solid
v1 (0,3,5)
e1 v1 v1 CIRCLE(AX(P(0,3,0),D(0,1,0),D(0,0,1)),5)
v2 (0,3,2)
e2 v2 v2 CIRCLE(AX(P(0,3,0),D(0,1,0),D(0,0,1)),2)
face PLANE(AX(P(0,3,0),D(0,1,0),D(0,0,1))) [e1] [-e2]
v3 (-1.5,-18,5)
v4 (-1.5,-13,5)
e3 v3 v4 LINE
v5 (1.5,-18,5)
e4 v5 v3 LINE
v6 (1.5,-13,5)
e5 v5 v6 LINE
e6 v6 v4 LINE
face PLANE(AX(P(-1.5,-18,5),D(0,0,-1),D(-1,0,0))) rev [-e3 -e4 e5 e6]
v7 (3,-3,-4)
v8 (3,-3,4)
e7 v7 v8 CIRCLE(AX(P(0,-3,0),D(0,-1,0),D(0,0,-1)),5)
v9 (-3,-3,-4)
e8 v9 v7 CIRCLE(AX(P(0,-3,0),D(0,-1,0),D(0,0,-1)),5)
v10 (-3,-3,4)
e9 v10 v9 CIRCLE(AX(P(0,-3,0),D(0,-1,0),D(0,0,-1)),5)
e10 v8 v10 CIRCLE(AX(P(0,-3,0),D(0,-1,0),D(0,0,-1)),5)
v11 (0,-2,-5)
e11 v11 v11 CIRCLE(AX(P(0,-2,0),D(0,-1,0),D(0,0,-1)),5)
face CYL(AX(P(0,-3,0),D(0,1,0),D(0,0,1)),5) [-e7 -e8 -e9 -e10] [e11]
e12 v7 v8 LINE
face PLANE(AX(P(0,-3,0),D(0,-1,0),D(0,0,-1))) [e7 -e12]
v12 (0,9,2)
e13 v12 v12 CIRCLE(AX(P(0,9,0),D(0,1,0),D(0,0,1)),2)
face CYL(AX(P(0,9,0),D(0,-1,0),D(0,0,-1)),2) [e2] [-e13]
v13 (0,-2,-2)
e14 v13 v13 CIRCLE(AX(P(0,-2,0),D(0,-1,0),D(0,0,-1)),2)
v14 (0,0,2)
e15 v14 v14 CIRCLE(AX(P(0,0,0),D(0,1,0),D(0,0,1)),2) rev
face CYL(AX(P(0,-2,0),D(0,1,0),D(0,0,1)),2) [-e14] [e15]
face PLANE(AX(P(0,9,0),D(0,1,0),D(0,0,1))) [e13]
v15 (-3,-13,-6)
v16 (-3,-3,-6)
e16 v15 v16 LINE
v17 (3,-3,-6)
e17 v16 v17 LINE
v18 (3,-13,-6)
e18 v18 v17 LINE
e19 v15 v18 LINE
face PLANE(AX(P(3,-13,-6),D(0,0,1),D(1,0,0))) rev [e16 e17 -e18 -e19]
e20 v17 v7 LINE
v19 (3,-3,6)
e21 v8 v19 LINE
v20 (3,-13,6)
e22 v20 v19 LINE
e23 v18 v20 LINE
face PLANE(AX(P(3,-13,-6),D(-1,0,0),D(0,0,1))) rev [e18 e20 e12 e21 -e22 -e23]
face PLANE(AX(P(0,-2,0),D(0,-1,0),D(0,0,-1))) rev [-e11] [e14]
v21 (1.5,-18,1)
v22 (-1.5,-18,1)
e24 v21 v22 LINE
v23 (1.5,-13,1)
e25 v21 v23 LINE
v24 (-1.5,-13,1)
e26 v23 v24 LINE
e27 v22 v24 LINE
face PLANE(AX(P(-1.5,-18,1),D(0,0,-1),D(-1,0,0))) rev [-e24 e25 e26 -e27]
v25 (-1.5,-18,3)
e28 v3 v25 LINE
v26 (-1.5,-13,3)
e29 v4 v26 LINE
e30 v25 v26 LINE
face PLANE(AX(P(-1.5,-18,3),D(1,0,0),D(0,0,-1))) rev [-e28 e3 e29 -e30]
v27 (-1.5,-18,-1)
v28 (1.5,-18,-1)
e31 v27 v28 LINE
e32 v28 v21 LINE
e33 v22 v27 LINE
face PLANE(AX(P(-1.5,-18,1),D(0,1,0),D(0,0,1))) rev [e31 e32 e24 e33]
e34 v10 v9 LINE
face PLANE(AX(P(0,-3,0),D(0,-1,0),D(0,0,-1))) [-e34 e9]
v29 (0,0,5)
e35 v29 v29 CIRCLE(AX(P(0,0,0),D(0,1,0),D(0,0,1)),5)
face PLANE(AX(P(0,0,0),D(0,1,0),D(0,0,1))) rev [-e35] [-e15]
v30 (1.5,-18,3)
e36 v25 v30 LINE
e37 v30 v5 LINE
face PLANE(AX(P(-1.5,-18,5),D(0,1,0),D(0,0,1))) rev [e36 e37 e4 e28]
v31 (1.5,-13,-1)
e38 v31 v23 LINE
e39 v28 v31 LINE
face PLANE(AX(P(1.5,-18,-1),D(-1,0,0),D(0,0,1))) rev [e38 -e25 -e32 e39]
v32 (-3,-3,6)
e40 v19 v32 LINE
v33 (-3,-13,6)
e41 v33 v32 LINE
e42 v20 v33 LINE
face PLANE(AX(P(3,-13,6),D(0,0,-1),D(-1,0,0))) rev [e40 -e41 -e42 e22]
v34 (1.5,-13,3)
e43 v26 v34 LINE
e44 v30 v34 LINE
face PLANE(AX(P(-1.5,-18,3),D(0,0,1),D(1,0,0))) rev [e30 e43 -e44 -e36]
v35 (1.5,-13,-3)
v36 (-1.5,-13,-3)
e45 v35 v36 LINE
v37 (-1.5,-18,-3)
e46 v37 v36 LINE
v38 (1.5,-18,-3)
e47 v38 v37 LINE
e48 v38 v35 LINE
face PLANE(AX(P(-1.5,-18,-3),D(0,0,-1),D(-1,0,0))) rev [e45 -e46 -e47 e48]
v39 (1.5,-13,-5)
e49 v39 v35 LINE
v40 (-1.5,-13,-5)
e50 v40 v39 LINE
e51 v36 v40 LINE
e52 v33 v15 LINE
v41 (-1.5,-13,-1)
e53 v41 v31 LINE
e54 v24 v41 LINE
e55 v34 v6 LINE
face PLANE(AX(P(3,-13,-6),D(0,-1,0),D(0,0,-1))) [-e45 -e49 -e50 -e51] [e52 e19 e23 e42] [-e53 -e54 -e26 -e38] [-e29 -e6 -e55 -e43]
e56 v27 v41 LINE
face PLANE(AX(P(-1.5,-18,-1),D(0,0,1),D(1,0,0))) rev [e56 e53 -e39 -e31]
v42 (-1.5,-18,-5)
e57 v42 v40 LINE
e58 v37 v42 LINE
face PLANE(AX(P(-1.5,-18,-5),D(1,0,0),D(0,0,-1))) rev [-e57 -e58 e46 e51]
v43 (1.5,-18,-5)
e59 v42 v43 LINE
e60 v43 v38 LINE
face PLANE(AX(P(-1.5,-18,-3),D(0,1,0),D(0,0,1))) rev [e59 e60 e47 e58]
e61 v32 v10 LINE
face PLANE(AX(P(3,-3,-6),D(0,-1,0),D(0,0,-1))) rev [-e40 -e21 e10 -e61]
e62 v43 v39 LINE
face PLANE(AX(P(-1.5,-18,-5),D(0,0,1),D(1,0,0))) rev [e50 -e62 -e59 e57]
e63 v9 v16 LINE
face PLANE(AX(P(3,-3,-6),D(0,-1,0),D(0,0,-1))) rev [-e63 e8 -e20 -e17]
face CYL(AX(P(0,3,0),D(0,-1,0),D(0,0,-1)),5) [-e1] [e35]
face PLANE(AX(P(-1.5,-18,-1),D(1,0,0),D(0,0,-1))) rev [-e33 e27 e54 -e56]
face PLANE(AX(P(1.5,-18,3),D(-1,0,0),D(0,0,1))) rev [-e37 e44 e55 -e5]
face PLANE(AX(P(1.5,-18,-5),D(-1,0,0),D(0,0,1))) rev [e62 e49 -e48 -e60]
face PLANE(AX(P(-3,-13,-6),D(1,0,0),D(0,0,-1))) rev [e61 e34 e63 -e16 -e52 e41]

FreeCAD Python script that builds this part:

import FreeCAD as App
import Part
import Sketcher
Q = App.Units.Quantity


def add_polygon(sketch, points):
    """Adds a closed chain of lines whose ends are joined by coincident constraints."""
    first, n = sketch.GeometryCount, len(points)
    for a, b in zip(points, points[1:] + points[:1]):
        sketch.addGeometry(Part.LineSegment(App.Vector(*a, 0), App.Vector(*b, 0)), False)
    for i in range(n):
        sketch.addConstraint(Sketcher.Constraint("Coincident", first + i, 2, first + (i + 1) % n, 1))

doc = App.newDocument("Part")
body = doc.addObject("PartDesign::Body", "Body")

# Sketch on XZ plane
sketch1 = doc.addObject("Sketcher::SketchObject", "Sketch")
body.addObject(sketch1)
sketch1.AttachmentSupport = (doc.XZ_Plane, [""])
sketch1.MapMode = "FlatFace"
sketch1.addGeometry(Part.Circle(App.Vector(0, 0, 0), App.Vector(0, 0, 1), 5), False)
sketch1.addConstraint([
    Sketcher.Constraint("Coincident", 0, 3, -1, 1),
    Sketcher.Constraint("Diameter", 0, Q("10 mm")),
])
pad1 = doc.addObject("PartDesign::Pad", "Pad")
body.addObject(pad1)
pad1.Profile = sketch1
pad1.Length = 3
pad1.Reversed = True

# Sketch on XZ plane
sketch2 = doc.addObject("Sketcher::SketchObject", "Sketch001")
body.addObject(sketch2)
sketch2.AttachmentSupport = (doc.XZ_Plane, [""])
sketch2.MapMode = "FlatFace"
sketch2.AttachmentOffset = App.Placement(App.Vector(0, 0, -3), App.Rotation())
sketch2.addGeometry(Part.Circle(App.Vector(0, 0, 0), App.Vector(0, 0, 1), 2), False)
sketch2.addConstraint([
    Sketcher.Constraint("Coincident", 0, 3, -1, 1),
    Sketcher.Constraint("Diameter", 0, Q("4 mm")),
])
pad2 = doc.addObject("PartDesign::Pad", "Pad001")
body.addObject(pad2)
pad2.Profile = sketch2
pad2.Length = 6
pad2.Reversed = True

# Sketch on XZ plane
sketch3 = doc.addObject("Sketcher::SketchObject", "Sketch002")
body.addObject(sketch3)
sketch3.AttachmentSupport = (doc.XZ_Plane, [""])
sketch3.MapMode = "FlatFace"
sketch3.addGeometry(Part.Circle(App.Vector(0, 0, 0), App.Vector(0, 0, 1), 2), False)
sketch3.addConstraint([
    Sketcher.Constraint("Coincident", 0, 3, -1, 1),
    Sketcher.Constraint("Diameter", 0, Q("4 mm")),
])
pad3 = doc.addObject("PartDesign::Pad", "Pad002")
body.addObject(pad3)
pad3.Profile = sketch3
pad3.Length = 2

# Sketch on XZ plane
sketch4 = doc.addObject("Sketcher::SketchObject", "Sketch003")
body.addObject(sketch4)
sketch4.AttachmentSupport = (doc.XZ_Plane, [""])
sketch4.MapMode = "FlatFace"
sketch4.AttachmentOffset = App.Placement(App.Vector(0, 0, 2), App.Rotation())
sketch4.addGeometry(Part.Circle(App.Vector(0, 0, 0), App.Vector(0, 0, 1), 5), False)
sketch4.addConstraint([
    Sketcher.Constraint("Coincident", 0, 3, -1, 1),
    Sketcher.Constraint("Diameter", 0, Q("10 mm")),
])
pad4 = doc.addObject("PartDesign::Pad", "Pad003")
body.addObject(pad4)
pad4.Profile = sketch4
pad4.Length = 1

# Sketch on XZ plane
sketch5 = doc.addObject("Sketcher::SketchObject", "Sketch004")
body.addObject(sketch5)
sketch5.AttachmentSupport = (doc.XZ_Plane, [""])
sketch5.MapMode = "FlatFace"
sketch5.AttachmentOffset = App.Placement(App.Vector(0, 0, 3), App.Rotation())
add_polygon(sketch5, [(-3, 6), (-3, -6), (3, -6), (3, 6)])  # lines 0-3
sketch5.addConstraint([
    Sketcher.Constraint("Vertical", 0),
    Sketcher.Constraint("Horizontal", 1),
    Sketcher.Constraint("Vertical", 2),
    Sketcher.Constraint("Horizontal", 3),
    Sketcher.Constraint("Symmetric", 0, 2, 2, 2, -1, 1),
    Sketcher.Constraint("DistanceX", 1, 1, 1, 2, Q("6 mm")),
    Sketcher.Constraint("DistanceY", 0, 2, 0, 1, Q("12 mm")),
])
pad5 = doc.addObject("PartDesign::Pad", "Pad004")
body.addObject(pad5)
pad5.Profile = sketch5
pad5.Length = 10

# Sketch on XZ plane
sketch6 = doc.addObject("Sketcher::SketchObject", "Sketch005")
body.addObject(sketch6)
sketch6.AttachmentSupport = (doc.XZ_Plane, [""])
sketch6.MapMode = "FlatFace"
sketch6.AttachmentOffset = App.Placement(App.Vector(0, 0, 13), App.Rotation())
add_polygon(sketch6, [(-1.5, 5), (-1.5, 3), (1.5, 3), (1.5, 5)])  # lines 0-3
add_polygon(sketch6, [(-1.5, 1), (-1.5, -1), (1.5, -1), (1.5, 1)])  # lines 4-7
add_polygon(sketch6, [(-1.5, -3), (-1.5, -5), (1.5, -5), (1.5, -3)])  # lines 8-11
sketch6.addConstraint([
    Sketcher.Constraint("Vertical", 0),
    Sketcher.Constraint("Horizontal", 1),
    Sketcher.Constraint("Vertical", 2),
    Sketcher.Constraint("Horizontal", 3),
    Sketcher.Constraint("Vertical", 4),
    Sketcher.Constraint("Horizontal", 5),
    Sketcher.Constraint("Vertical", 6),
    Sketcher.Constraint("Horizontal", 7),
    Sketcher.Constraint("Vertical", 8),
    Sketcher.Constraint("Horizontal", 9),
    Sketcher.Constraint("Vertical", 10),
    Sketcher.Constraint("Horizontal", 11),
    Sketcher.Constraint("Symmetric", 4, 2, 6, 2, -1, 1),
    Sketcher.Constraint("Symmetric", 2, 2, 8, 2, -1, 1),
    Sketcher.Constraint("Symmetric", 0, 2, 10, 2, -1, 1),
    Sketcher.Constraint("Vertical", 3, 2, 4, 2),
    Sketcher.Constraint("Vertical", 2, 2, 5, 2),
    Sketcher.Constraint("Equal", 2, 4),
    Sketcher.Constraint("DistanceX", 1, 1, 1, 2, Q("3 mm")),
    Sketcher.Constraint("DistanceY", 0, 2, 0, 1, Q("2 mm")),
    Sketcher.Constraint("DistanceY", -1, 1, 0, 2, Q("3 mm")),
])
pad6 = doc.addObject("PartDesign::Pad", "Pad005")
body.addObject(pad6)
pad6.Profile = sketch6
pad6.Length = 5

doc.recompute()
